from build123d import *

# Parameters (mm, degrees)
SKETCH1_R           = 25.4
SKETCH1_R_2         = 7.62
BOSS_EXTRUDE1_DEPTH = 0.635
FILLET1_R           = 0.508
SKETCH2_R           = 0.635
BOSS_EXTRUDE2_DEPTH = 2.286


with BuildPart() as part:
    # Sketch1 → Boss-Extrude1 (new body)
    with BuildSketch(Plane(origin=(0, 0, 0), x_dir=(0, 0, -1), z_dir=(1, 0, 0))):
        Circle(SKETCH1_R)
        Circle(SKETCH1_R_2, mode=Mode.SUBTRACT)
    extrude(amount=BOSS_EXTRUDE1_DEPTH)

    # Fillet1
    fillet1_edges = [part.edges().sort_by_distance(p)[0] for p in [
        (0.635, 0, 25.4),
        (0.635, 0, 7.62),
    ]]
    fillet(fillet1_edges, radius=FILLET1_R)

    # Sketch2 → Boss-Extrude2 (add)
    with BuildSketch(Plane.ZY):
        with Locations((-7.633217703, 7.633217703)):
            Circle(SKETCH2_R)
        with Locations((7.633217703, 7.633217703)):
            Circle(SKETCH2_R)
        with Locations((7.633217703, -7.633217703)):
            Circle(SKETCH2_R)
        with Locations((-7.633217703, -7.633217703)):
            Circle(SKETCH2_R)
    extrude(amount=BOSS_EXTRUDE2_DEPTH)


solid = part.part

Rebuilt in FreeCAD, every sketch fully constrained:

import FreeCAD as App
import Part
import Sketcher
from FreeCAD import Vector
Q = App.Units.Quantity


def edges_at(feature, points):
    """Names of the edges that pass closest to the given points."""
    edges = feature.Shape.Edges
    near = lambda p: min(range(len(edges)), key=lambda i: edges[i].distToShape(Part.Vertex(*p))[0])
    return sorted({f"Edge{near(p) + 1}" for p in points})

doc = App.newDocument("Part")
params = doc.addObject("Spreadsheet::Sheet", "Params")
for row, (alias, value) in enumerate([
    ("sketch1_diameter", "2 in"),
    ("sketch1_diameter2", "0.6 in"),
    ("pad1_length", "0.025 in"),
    ("fillet_radius", "0.02 in"),
    ("sketch2_diameter", "0.05 in"),
    ("pad2_length", "0.09 in"),
], start=1):
    params.set(f"A{row}", alias)
    params.set(f"B{row}", "=" + value)
    params.setAlias(f"B{row}", alias)

body = doc.addObject("PartDesign::Body", "Body")

sketch1 = body.newObject("Sketcher::SketchObject", "Sketch")
sketch1.AttachmentSupport = (doc.getObject("YZ_Plane"), [""])
sketch1.MapMode = "FlatFace"
sketch1.addGeometry([
    Part.Circle(Vector(0, 0, 0), Vector(0, 0, 1), 25),
    Part.Circle(Vector(0, 0, 0), Vector(0, 0, 1), 8),
], False)
sketch1.addConstraint([
    Sketcher.Constraint("Coincident", 0, 3, -1, 1),
    Sketcher.Constraint("Coincident", 1, 3, -1, 1),
    Sketcher.Constraint("Diameter", 0, Q("2 in")),
    Sketcher.Constraint("Diameter", 1, Q("0.6 in")),
])
sketch1.setExpression("Constraints[2]", "Params.sketch1_diameter")
sketch1.setExpression("Constraints[3]", "Params.sketch1_diameter2")
pad1 = body.newObject("PartDesign::Pad", "Pad")
pad1.Profile = sketch1
pad1.setExpression("Length", "Params.pad1_length")
doc.recompute()

fillet = body.newObject("PartDesign::Fillet", "Fillet")
fillet.Base = (pad1, edges_at(pad1, [(0.635, 0, 25.4), (0.635, 0, 7.62)]))
fillet.setExpression("Radius", "Params.fillet_radius")

sketch2 = body.newObject("Sketcher::SketchObject", "Sketch001")
sketch2.AttachmentSupport = (doc.getObject("YZ_Plane"), [""])
sketch2.MapMode = "FlatFace"
sketch2.addGeometry([
    Part.Circle(Vector(7.6, -7.6, 0), Vector(0, 0, 1), 0.6),
    Part.Circle(Vector(7.6, 7.6, 0), Vector(0, 0, 1), 0.6),
    Part.Circle(Vector(-7.6, 7.6, 0), Vector(0, 0, 1), 0.6),
    Part.Circle(Vector(-7.6, -7.6, 0), Vector(0, 0, 1), 0.6),
], False)
sketch2.addConstraint([
    Sketcher.Constraint("Equal", 0, 1),
    Sketcher.Constraint("Equal", 1, 2),
    Sketcher.Constraint("Equal", 2, 3),
    Sketcher.Constraint("Symmetric", 0, 3, 2, 3, -1, 1),
    Sketcher.Constraint("Symmetric", 1, 3, 3, 3, -1, 1),
    Sketcher.Constraint("Symmetric", 1, 3, 2, 3, -2),
    Sketcher.Constraint("Diameter", 0, Q("0.05 in")),
    Sketcher.Constraint("DistanceX", -1, 1, 0, 3, 7.633218),
    Sketcher.Constraint("DistanceY", 0, 3, -1, 1, 7.633218),
])
sketch2.setExpression("Constraints[6]", "Params.sketch2_diameter")
pad2 = body.newObject("PartDesign::Pad", "Pad001")
pad2.Profile = sketch2
pad2.setExpression("Length", "Params.pad2_length")
pad2.Reversed = True

doc.recompute()
